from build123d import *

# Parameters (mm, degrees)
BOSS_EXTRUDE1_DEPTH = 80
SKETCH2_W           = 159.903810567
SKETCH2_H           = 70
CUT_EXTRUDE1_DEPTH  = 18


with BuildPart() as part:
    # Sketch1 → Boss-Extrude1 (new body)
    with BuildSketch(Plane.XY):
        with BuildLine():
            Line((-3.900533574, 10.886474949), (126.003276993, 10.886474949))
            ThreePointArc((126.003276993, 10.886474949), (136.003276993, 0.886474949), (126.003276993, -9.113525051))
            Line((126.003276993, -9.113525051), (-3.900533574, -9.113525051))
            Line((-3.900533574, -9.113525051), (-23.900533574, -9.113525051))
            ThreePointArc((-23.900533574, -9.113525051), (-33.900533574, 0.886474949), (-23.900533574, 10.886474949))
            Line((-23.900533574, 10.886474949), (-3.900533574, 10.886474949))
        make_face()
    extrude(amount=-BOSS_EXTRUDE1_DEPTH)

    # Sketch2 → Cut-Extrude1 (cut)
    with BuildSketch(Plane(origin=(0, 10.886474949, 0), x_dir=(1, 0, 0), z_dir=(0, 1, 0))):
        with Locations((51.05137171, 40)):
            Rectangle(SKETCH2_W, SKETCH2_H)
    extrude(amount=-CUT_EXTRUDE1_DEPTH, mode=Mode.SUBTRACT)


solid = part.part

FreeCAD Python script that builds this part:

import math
import FreeCAD as App
import Part
import Sketcher
from FreeCAD import Vector

doc = App.newDocument("Part")
params = doc.addObject("Spreadsheet::Sheet", "Params")
for row, (alias, value) in enumerate([
    ("sketch1_radius", "10 mm"),
    ("pad1_length", "80 mm"),
    ("sketch2_height", "70 mm"),
    ("pocket1_length", "18 mm"),
], start=1):
    params.set(f"A{row}", alias)
    params.set(f"B{row}", "=" + value)
    params.setAlias(f"B{row}", alias)

body = doc.addObject("PartDesign::Body", "Body")

sketch1 = doc.addObject("Sketcher::SketchObject", "Sketch")
body.addObject(sketch1)
sketch1.AttachmentSupport = (doc.XY_Plane, [""])
sketch1.MapMode = "FlatFace"
sketch1.addGeometry([
    Part.ArcOfCircle(Part.Circle(Vector(126, 1, 0), Vector(0, 0, 1), 10), math.radians(-90), math.radians(90)),
    Part.LineSegment(Vector(126, 11, 0), Vector(-24, 11, 0)),
    Part.ArcOfCircle(Part.Circle(Vector(-24, 1, 0), Vector(0, 0, 1), 10), math.radians(90), math.radians(270)),
    Part.LineSegment(Vector(-24, -9, 0), Vector(126, -9, 0)),
], False)
sketch1.addConstraint([
    Sketcher.Constraint("Tangent", 0, 2, 1, 1),
    Sketcher.Constraint("Tangent", 1, 2, 2, 1),
    Sketcher.Constraint("Tangent", 2, 2, 3, 1),
    Sketcher.Constraint("Tangent", 3, 2, 0, 1),
    Sketcher.Constraint("Horizontal", 1),
    Sketcher.Constraint("Horizontal", 3),
    Sketcher.Constraint("Radius", 0, 10.0),
    Sketcher.Constraint("DistanceX", 1, 2, 1, 1, 149.903811),
    Sketcher.Constraint("DistanceX", -1, 1, 0, 3, 126.003277),
    Sketcher.Constraint("DistanceY", -1, 1, 0, 3, 0.886475),
])
sketch1.setExpression("Constraints[6]", "Params.sketch1_radius")
pad1 = doc.addObject("PartDesign::Pad", "Pad")
body.addObject(pad1)
pad1.Profile = sketch1
pad1.setExpression("Length", "Params.pad1_length")
pad1.Reversed = True

sketch2 = doc.addObject("Sketcher::SketchObject", "Sketch001")
body.addObject(sketch2)
sketch2.AttachmentSupport = (doc.XZ_Plane, [""])
sketch2.MapMode = "FlatFace"
sketch2.AttachmentOffset = App.Placement(Vector(0, 0, -10.886475), App.Rotation())
sketch2.addGeometry([
    Part.LineSegment(Vector(-29, -75, 0), Vector(-29, -5, 0)),
    Part.LineSegment(Vector(-29, -5, 0), Vector(131, -5, 0)),
    Part.LineSegment(Vector(131, -5, 0), Vector(131, -75, 0)),
    Part.LineSegment(Vector(131, -75, 0), Vector(-29, -75, 0)),
], False)
sketch2.addConstraint([
    Sketcher.Constraint("Coincident", 0, 2, 1, 1),
    Sketcher.Constraint("Coincident", 1, 2, 2, 1),
    Sketcher.Constraint("Coincident", 2, 2, 3, 1),
    Sketcher.Constraint("Coincident", 3, 2, 0, 1),
    Sketcher.Constraint("Vertical", 0),
    Sketcher.Constraint("Horizontal", 1),
    Sketcher.Constraint("Vertical", 2),
    Sketcher.Constraint("Horizontal", 3),
    Sketcher.Constraint("DistanceY", 0, 1, 0, 2, 70.0),
    Sketcher.Constraint("DistanceY", 0, 2, -1, 1, 5.0),
    Sketcher.Constraint("DistanceX", 1, 1, 1, 2, 159.903811),
    Sketcher.Constraint("DistanceX", 0, 2, -1, 1, 28.900534),
])
sketch2.setExpression("Constraints[8]", "Params.sketch2_height")
pocket1 = doc.addObject("PartDesign::Pocket", "Pocket")
body.addObject(pocket1)
pocket1.Profile = sketch2
pocket1.setExpression("Length", "Params.pocket1_length")
pocket1.Reversed = True

doc.recompute()
